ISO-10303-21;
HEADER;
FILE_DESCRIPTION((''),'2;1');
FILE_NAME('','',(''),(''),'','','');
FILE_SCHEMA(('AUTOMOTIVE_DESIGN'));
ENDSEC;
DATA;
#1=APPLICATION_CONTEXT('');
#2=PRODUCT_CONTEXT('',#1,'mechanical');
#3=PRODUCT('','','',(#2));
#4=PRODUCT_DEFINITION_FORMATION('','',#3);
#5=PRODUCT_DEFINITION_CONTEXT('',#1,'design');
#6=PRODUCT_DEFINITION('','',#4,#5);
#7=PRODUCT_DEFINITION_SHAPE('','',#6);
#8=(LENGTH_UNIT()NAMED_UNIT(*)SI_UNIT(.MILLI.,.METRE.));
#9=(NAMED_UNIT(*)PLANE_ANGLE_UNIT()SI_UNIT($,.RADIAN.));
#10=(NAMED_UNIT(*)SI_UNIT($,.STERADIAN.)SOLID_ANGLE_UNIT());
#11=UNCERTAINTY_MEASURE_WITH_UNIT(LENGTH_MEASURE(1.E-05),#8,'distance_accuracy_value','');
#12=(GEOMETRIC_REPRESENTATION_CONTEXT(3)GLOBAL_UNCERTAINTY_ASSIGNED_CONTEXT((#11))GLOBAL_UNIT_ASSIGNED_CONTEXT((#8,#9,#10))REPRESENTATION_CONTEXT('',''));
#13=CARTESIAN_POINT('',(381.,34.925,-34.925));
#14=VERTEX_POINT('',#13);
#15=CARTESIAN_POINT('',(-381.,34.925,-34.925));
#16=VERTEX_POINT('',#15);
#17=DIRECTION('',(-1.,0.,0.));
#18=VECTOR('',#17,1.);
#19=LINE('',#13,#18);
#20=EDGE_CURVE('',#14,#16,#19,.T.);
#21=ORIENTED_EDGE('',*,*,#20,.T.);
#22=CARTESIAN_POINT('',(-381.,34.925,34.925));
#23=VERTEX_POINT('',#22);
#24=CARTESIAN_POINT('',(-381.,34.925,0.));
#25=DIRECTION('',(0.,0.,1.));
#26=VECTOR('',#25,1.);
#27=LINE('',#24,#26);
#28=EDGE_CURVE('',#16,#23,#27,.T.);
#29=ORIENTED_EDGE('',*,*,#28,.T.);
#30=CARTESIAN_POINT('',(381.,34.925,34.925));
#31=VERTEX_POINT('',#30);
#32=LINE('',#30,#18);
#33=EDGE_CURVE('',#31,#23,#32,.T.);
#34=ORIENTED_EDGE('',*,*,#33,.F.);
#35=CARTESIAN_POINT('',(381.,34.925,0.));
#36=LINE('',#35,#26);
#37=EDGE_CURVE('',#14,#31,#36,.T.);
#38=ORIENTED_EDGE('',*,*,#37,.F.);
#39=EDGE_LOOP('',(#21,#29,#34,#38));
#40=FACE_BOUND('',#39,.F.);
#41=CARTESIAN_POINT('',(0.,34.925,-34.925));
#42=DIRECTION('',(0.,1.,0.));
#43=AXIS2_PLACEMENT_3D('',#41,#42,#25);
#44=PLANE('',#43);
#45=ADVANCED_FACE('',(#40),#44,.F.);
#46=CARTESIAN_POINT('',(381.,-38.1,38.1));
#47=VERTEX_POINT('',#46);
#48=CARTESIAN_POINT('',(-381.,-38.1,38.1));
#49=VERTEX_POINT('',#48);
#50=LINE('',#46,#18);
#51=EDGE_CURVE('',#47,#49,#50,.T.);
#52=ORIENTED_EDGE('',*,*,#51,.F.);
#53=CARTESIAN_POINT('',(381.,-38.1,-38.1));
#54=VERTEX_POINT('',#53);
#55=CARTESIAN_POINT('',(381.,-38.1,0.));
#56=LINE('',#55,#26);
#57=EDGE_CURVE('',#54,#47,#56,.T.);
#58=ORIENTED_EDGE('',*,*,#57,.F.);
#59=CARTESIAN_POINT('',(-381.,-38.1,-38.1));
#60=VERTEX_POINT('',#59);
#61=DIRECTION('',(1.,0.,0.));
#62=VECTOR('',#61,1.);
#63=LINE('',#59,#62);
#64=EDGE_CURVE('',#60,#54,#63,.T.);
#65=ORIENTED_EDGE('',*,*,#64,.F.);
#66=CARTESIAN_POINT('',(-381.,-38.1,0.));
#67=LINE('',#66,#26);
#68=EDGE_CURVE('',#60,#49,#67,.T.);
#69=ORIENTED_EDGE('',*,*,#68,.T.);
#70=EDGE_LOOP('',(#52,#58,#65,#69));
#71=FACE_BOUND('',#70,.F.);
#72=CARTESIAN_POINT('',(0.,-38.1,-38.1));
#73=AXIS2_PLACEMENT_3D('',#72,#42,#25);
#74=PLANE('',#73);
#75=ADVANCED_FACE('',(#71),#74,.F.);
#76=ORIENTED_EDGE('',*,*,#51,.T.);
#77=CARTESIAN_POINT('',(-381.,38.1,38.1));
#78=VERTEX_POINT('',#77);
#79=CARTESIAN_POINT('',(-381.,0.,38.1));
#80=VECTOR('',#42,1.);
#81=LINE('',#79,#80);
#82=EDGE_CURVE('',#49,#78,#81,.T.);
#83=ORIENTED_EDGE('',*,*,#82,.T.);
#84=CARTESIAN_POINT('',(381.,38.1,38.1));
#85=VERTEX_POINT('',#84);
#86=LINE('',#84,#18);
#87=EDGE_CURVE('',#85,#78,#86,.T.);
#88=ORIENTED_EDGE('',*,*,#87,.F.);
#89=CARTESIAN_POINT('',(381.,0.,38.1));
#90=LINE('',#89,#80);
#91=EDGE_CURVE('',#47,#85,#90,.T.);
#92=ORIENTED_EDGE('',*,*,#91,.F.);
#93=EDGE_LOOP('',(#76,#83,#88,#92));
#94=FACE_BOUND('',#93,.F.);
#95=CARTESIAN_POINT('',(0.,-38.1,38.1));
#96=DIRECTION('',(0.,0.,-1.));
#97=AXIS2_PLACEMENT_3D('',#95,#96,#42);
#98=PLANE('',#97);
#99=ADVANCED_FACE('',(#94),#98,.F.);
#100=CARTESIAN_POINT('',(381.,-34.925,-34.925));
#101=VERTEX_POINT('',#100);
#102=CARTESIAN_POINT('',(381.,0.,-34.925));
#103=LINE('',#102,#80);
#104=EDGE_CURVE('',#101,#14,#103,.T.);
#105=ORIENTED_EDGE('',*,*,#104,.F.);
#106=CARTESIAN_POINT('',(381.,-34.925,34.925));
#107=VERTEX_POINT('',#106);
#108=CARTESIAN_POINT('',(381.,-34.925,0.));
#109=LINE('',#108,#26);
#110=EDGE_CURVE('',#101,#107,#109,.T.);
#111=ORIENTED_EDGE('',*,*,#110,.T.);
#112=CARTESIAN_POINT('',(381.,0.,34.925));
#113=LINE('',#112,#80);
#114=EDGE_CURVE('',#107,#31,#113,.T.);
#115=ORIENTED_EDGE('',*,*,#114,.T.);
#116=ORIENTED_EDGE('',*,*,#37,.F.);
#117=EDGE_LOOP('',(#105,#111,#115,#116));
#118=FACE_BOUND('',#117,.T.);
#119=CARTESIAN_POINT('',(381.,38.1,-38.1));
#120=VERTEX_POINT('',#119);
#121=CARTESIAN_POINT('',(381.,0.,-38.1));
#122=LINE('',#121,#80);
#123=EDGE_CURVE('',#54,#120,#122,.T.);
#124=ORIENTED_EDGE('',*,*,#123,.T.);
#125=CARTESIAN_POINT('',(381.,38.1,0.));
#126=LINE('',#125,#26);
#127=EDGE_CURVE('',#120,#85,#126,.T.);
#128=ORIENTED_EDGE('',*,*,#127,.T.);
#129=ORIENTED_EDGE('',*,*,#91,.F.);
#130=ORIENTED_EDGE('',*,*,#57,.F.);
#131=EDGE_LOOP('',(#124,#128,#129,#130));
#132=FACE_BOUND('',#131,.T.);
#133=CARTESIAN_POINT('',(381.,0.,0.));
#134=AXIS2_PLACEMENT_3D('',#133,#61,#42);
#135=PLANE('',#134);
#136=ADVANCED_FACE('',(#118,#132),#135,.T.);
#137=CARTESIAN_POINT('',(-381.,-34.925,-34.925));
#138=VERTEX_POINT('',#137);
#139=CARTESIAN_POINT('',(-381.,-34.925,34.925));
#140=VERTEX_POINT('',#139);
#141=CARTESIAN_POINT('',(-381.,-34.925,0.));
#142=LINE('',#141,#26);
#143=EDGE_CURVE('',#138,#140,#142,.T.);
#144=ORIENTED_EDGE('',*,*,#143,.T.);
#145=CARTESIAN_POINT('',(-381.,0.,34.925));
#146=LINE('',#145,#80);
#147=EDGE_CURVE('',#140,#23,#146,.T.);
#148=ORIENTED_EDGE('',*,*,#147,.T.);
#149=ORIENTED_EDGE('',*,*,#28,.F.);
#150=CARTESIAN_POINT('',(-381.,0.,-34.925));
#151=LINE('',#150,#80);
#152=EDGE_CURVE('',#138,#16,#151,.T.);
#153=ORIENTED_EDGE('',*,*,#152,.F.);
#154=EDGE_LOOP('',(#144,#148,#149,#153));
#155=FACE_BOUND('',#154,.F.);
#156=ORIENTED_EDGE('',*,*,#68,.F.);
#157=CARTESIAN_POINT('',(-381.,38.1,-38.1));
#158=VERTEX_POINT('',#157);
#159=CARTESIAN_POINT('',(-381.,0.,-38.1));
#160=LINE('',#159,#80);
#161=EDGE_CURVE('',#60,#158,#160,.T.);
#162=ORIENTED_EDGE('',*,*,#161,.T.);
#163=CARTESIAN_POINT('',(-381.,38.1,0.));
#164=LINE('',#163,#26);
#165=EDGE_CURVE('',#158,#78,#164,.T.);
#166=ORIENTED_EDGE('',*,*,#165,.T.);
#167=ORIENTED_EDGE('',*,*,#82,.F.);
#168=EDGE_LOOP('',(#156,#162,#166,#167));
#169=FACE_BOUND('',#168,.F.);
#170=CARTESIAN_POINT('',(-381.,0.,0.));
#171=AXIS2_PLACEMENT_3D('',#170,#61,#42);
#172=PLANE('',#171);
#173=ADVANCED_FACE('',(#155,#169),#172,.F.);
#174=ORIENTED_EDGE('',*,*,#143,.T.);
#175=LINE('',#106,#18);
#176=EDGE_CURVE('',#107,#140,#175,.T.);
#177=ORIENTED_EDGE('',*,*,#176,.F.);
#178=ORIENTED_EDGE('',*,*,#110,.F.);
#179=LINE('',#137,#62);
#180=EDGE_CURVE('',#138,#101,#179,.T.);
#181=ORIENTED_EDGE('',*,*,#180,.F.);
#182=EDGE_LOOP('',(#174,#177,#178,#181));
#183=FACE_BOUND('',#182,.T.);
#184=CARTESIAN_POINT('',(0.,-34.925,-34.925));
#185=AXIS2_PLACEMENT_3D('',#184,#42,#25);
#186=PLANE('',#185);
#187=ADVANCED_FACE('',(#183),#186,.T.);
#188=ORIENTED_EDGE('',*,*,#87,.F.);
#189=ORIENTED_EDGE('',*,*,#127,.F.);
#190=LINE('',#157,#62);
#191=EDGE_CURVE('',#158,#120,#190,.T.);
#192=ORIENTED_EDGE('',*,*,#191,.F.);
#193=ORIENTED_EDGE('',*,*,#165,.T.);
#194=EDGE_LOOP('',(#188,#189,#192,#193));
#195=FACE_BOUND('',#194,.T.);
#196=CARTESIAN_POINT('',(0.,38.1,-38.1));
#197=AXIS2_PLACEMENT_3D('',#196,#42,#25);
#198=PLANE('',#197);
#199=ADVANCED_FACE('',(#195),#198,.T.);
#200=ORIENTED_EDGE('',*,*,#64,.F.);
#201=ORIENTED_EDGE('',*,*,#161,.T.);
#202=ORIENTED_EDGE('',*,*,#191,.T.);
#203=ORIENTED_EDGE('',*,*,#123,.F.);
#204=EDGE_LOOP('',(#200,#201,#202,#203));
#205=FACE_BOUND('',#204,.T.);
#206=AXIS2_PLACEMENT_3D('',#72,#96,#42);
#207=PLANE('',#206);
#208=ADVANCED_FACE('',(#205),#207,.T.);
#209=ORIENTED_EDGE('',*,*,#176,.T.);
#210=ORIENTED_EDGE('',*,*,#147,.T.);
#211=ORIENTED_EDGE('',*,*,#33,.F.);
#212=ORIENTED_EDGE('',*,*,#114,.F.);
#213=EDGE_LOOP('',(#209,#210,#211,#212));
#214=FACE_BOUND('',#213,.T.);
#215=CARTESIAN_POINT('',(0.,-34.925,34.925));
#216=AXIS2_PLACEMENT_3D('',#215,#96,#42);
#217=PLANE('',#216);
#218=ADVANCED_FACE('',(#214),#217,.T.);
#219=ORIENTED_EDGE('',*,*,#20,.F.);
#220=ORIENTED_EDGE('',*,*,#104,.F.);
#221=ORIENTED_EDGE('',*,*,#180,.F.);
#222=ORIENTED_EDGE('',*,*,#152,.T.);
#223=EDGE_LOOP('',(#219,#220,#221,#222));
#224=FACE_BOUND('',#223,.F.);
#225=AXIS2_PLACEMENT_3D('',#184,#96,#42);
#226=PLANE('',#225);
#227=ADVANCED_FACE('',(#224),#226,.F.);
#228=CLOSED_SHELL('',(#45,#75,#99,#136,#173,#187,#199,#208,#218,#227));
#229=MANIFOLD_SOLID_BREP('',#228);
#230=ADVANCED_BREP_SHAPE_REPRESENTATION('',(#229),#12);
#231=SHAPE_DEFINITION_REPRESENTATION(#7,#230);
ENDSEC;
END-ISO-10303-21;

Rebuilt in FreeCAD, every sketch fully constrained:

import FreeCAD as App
import Part
import Sketcher
from FreeCAD import Vector
Q = App.Units.Quantity

doc = App.newDocument("Part")
body = doc.addObject("PartDesign::Body", "Body")

# Sketch on YZ plane
sketch1 = body.newObject("Sketcher::SketchObject", "Sketch")
sketch1.AttachmentSupport = (doc.getObject("YZ_Plane"), [""])
sketch1.MapMode = "FlatFace"
sketch1.addGeometry([
    Part.LineSegment(Vector(-38, 38, 0), Vector(-38, -38, 0)),  # 0
    Part.LineSegment(Vector(-38, -38, 0), Vector(38, -38, 0)),  # 1
    Part.LineSegment(Vector(38, -38, 0), Vector(38, 38, 0)),  # 2
    Part.LineSegment(Vector(38, 38, 0), Vector(-38, 38, 0)),  # 3
    Part.LineSegment(Vector(35, -35, 0), Vector(-35, -35, 0)),  # 4
    Part.LineSegment(Vector(-35, -35, 0), Vector(-35, 35, 0)),  # 5
    Part.LineSegment(Vector(-35, 35, 0), Vector(35, 35, 0)),  # 6
    Part.LineSegment(Vector(35, 35, 0), Vector(35, -35, 0)),  # 7
], False)
sketch1.addConstraint([
    Sketcher.Constraint("Coincident", 0, 2, 1, 1),
    Sketcher.Constraint("Coincident", 1, 2, 2, 1),
    Sketcher.Constraint("Coincident", 2, 2, 3, 1),
    Sketcher.Constraint("Coincident", 3, 2, 0, 1),
    Sketcher.Constraint("Coincident", 4, 2, 5, 1),
    Sketcher.Constraint("Coincident", 5, 2, 6, 1),
    Sketcher.Constraint("Coincident", 6, 2, 7, 1),
    Sketcher.Constraint("Coincident", 7, 2, 4, 1),
    Sketcher.Constraint("Vertical", 0),
    Sketcher.Constraint("Horizontal", 1),
    Sketcher.Constraint("Vertical", 2),
    Sketcher.Constraint("Horizontal", 3),
    Sketcher.Constraint("Horizontal", 4),
    Sketcher.Constraint("Vertical", 5),
    Sketcher.Constraint("Horizontal", 6),
    Sketcher.Constraint("Vertical", 7),
    Sketcher.Constraint("Symmetric", 0, 2, 2, 2, -1, 1),
    Sketcher.Constraint("Symmetric", 4, 2, 6, 2, -1, 1),
    Sketcher.Constraint("Equal", 3, 0),
    Sketcher.Constraint("Equal", 6, 5),
    Sketcher.Constraint("DistanceX", 1, 1, 1, 2, Q("3 in")),
    Sketcher.Constraint("DistanceX", 4, 2, 4, 1, Q("2.75 in")),
])
pad1 = body.newObject("PartDesign::Pad", "Pad")
pad1.Profile = sketch1
pad1.Type = "TwoLengths"
pad1.Length = Q("15 in")
pad1.Length2 = Q("15 in")

doc.recompute()
